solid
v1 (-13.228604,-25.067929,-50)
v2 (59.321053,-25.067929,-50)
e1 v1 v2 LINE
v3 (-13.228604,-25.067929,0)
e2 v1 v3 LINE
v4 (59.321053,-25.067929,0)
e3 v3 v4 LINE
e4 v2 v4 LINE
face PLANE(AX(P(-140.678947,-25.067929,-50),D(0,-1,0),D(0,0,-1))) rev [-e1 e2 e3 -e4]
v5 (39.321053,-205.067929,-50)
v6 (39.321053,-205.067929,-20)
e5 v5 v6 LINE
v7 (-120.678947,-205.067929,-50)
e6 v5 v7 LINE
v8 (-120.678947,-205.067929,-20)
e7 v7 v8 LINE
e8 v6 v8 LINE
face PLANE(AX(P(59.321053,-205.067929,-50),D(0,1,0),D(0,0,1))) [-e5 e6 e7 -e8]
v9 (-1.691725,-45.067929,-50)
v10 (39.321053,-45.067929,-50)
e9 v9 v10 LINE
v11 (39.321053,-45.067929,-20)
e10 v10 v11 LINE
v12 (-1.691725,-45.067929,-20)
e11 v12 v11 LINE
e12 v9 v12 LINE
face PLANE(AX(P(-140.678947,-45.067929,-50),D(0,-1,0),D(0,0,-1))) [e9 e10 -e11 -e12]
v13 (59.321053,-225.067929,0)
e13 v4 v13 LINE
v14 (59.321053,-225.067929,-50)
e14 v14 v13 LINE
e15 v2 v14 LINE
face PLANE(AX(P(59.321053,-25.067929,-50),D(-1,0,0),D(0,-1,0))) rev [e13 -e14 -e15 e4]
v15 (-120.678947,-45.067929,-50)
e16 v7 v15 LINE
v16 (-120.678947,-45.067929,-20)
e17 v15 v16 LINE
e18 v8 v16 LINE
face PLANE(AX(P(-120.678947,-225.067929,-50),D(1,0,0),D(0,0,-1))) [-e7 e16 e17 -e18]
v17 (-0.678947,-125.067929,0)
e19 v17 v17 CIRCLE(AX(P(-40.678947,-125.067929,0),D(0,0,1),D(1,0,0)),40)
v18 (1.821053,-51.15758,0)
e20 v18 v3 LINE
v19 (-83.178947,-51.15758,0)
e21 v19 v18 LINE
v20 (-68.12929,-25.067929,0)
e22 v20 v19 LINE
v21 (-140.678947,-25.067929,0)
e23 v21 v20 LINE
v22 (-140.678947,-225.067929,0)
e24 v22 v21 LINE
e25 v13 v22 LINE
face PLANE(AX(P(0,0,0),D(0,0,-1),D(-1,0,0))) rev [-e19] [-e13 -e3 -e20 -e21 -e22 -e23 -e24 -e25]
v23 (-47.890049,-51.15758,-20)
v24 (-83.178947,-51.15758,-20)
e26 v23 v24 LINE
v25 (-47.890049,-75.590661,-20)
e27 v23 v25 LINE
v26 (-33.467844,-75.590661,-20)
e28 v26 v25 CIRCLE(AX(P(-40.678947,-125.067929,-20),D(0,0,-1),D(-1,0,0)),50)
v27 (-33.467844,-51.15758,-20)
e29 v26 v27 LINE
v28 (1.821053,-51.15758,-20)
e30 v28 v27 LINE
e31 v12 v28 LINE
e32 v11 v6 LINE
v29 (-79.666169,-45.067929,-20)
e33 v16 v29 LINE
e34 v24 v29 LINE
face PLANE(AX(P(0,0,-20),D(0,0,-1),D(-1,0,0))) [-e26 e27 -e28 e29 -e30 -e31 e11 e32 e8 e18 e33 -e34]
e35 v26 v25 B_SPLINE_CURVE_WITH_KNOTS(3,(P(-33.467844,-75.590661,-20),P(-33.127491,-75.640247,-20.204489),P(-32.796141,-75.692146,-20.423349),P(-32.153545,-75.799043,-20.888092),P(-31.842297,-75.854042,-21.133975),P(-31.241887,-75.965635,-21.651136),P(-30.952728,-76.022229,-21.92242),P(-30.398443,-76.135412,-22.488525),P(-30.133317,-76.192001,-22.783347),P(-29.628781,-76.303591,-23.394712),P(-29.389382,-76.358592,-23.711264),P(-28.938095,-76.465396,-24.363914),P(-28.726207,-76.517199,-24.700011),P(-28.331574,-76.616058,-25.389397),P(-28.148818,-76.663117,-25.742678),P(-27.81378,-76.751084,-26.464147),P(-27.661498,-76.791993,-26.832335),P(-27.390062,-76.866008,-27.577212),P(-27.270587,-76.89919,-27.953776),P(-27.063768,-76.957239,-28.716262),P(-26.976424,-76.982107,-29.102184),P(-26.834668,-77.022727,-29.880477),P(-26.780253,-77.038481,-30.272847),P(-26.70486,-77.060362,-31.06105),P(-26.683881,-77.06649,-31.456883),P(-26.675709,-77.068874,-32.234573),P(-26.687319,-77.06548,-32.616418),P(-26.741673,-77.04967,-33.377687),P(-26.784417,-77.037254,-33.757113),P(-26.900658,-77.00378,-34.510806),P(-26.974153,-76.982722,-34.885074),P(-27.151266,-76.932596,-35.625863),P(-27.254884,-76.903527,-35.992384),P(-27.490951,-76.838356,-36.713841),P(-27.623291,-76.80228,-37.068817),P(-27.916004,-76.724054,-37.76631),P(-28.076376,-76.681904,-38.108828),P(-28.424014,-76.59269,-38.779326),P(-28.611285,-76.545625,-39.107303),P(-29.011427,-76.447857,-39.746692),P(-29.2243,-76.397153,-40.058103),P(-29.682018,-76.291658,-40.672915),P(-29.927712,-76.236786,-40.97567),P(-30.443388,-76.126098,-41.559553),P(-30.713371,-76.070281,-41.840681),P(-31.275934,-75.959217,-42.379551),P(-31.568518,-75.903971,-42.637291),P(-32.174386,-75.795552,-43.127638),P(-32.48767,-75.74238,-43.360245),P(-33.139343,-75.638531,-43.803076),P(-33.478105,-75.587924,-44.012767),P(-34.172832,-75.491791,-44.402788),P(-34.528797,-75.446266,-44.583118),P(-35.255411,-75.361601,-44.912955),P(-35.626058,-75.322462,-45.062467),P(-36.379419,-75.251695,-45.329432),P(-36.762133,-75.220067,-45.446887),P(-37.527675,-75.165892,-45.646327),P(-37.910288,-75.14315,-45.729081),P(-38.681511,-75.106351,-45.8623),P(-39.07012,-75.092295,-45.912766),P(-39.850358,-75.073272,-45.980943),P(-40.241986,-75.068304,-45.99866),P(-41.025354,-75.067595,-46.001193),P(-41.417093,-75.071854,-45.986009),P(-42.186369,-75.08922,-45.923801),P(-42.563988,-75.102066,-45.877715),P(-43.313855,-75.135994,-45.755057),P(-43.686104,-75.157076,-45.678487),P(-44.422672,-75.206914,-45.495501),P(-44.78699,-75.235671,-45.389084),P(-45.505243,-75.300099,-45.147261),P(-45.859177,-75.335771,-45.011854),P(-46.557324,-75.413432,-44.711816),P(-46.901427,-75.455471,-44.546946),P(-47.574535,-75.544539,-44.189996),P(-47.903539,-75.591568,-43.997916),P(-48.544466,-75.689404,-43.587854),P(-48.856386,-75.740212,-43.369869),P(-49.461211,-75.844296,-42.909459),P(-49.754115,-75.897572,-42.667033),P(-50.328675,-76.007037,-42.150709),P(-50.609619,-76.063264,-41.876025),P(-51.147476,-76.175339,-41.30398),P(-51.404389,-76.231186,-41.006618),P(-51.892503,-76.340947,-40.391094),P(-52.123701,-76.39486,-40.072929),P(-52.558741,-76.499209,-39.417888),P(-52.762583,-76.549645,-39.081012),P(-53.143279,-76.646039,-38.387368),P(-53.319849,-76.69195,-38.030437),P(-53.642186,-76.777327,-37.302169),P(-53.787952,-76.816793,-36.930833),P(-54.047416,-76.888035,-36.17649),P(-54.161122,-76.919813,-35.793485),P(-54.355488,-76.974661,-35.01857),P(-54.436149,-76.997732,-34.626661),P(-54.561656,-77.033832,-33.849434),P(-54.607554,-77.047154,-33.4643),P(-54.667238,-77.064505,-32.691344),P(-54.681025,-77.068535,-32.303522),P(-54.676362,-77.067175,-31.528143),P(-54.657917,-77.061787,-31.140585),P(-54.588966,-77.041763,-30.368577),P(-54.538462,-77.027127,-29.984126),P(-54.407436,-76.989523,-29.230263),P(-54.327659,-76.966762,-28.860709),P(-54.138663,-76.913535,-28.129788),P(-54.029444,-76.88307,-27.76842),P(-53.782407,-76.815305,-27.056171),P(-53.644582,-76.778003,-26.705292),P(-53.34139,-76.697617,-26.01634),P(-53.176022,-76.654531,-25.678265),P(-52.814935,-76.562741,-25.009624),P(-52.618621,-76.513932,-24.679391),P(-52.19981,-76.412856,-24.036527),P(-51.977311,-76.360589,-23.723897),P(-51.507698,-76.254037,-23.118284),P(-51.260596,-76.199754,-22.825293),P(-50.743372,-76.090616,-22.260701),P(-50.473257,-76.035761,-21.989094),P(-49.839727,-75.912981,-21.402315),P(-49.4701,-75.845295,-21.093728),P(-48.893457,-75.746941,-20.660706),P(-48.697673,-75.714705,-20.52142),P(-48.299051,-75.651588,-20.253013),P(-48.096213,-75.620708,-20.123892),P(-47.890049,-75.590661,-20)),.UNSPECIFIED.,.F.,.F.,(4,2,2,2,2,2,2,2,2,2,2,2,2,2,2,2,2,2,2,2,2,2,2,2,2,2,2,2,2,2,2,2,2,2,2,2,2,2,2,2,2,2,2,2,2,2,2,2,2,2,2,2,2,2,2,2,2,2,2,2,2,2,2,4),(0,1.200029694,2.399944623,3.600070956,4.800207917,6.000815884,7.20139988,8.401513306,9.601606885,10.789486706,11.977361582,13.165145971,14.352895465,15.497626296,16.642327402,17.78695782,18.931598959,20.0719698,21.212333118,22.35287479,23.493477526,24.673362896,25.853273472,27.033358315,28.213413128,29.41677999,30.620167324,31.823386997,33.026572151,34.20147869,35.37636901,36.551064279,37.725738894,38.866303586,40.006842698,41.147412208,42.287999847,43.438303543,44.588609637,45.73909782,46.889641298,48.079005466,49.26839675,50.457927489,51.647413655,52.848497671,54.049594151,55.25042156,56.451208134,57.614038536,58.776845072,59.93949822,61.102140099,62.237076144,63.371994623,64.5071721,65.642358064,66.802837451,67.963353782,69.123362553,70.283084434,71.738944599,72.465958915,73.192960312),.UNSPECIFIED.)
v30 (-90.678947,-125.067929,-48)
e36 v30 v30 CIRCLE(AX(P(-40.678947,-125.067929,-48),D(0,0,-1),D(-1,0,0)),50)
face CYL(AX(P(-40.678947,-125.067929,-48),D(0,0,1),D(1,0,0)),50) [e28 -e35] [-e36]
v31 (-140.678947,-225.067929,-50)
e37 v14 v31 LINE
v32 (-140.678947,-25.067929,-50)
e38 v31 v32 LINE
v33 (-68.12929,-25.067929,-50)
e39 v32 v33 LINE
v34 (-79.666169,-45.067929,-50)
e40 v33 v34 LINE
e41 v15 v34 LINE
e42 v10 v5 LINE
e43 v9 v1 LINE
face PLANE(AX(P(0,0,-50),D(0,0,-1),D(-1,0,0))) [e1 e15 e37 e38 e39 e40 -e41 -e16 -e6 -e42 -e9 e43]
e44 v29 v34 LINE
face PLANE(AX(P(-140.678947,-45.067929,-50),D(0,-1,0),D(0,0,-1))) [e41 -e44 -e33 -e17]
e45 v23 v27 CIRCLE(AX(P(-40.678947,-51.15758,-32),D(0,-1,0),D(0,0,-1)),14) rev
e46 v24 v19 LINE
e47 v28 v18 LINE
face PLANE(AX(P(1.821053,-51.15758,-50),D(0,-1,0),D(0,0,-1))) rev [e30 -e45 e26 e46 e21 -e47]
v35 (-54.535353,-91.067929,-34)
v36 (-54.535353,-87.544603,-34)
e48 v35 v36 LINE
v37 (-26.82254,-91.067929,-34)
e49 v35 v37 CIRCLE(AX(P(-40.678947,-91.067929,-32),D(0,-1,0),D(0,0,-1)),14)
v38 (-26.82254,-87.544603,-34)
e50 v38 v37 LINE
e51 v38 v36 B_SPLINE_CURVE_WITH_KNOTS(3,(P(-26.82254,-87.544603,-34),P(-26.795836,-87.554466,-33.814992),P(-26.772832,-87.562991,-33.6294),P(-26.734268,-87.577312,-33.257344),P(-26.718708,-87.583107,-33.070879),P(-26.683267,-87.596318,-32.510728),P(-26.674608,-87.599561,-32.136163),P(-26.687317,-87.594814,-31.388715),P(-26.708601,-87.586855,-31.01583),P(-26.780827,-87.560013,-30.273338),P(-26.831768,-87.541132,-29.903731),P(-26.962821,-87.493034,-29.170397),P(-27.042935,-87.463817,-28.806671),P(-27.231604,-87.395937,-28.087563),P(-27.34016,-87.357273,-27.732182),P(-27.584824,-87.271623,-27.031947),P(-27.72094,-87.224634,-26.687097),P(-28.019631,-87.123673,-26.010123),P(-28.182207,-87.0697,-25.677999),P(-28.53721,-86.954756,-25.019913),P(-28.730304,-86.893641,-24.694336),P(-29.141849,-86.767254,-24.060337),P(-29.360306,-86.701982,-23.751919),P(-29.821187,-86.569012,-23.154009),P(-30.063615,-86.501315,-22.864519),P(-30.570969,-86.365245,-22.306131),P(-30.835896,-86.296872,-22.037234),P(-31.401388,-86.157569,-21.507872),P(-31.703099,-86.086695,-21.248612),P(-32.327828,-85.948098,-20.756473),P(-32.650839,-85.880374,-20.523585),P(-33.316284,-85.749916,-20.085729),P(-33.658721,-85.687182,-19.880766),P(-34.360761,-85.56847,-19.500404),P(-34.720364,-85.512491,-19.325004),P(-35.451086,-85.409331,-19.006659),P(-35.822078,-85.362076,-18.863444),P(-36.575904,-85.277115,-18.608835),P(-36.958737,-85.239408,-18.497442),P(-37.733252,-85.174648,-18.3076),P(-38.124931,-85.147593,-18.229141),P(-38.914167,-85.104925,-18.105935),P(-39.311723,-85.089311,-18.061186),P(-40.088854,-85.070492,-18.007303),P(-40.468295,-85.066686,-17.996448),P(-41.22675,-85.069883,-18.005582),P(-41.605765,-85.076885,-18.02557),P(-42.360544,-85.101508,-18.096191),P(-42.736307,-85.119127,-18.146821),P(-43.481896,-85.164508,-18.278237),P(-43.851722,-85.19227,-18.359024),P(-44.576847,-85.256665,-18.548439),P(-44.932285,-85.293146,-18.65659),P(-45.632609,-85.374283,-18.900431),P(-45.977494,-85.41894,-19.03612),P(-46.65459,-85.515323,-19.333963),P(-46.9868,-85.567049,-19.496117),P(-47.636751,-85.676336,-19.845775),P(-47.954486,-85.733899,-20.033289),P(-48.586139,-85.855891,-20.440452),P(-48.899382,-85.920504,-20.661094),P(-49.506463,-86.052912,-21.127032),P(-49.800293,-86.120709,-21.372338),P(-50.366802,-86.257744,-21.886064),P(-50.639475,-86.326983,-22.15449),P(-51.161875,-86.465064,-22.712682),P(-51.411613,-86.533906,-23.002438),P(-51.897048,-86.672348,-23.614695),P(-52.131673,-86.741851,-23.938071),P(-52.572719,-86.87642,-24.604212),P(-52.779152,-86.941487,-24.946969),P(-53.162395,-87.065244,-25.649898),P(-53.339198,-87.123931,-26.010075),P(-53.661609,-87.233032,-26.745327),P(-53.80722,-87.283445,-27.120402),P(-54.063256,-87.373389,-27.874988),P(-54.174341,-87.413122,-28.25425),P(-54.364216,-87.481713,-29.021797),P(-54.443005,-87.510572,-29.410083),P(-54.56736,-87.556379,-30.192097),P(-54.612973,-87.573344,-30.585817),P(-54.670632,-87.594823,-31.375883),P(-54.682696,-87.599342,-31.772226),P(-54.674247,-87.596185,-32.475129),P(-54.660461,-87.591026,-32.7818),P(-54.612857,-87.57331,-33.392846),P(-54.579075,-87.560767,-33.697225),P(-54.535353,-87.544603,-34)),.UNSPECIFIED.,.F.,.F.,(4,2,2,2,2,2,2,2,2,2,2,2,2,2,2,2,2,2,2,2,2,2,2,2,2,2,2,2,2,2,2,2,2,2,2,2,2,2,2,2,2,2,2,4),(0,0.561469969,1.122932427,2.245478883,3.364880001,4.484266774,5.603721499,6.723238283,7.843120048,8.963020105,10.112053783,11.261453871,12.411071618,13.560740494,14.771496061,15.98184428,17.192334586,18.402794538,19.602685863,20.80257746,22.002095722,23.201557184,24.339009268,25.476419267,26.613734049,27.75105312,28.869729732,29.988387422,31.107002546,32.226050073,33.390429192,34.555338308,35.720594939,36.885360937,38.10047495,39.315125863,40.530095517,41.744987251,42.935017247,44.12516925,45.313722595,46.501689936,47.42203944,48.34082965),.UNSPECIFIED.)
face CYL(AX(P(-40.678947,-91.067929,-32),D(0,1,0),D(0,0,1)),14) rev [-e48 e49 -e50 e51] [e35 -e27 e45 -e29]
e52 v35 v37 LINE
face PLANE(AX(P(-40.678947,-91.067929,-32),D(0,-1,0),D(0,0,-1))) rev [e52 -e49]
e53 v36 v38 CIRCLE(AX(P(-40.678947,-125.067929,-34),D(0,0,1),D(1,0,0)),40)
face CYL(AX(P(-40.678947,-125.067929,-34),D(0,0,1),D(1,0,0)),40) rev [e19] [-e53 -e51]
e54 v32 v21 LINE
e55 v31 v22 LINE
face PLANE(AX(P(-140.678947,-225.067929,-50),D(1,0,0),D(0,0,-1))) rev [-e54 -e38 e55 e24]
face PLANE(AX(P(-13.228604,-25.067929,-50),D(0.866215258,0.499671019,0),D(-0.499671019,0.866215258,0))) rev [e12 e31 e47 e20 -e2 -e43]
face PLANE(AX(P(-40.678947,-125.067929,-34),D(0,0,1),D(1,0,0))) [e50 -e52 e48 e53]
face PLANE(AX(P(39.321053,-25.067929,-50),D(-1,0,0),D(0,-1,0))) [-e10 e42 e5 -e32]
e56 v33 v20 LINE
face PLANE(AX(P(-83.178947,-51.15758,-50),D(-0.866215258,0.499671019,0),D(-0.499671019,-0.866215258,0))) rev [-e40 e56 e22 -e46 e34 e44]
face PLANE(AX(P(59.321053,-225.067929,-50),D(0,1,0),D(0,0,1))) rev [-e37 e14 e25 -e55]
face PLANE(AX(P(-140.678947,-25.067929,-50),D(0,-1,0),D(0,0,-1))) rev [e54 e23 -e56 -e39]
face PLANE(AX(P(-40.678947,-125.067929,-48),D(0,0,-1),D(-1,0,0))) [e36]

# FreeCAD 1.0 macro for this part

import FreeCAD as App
import Part
import Sketcher
from FreeCAD import Vector
Q = App.Units.Quantity


def faces_at(feature, points):
    """Names of the faces that lie closest to the given points."""
    faces = feature.Shape.Faces
    near = lambda p: min(range(len(faces)), key=lambda i: faces[i].distToShape(Part.Vertex(*p))[0])
    return sorted({f"Face{near(p) + 1}" for p in points})

doc = App.newDocument("Part")
body = doc.addObject("PartDesign::Body", "Body")

# Sketch on XY plane
sketch1 = doc.addObject("Sketcher::SketchObject", "Sketch")
body.addObject(sketch1)
sketch1.AttachmentSupport = (doc.XY_Plane, [""])
sketch1.MapMode = "FlatFace"
sketch1.addGeometry([
    Part.LineSegment(Vector(-140.678947, -25.067929, 0), Vector(-140.678947, -225.067929, 0)),
    Part.LineSegment(Vector(-140.678947, -225.067929, 0), Vector(59.321053, -225.067929, 0)),
    Part.LineSegment(Vector(59.321053, -225.067929, 0), Vector(59.321053, -25.067929, 0)),
    Part.LineSegment(Vector(59.321053, -25.067929, 0), Vector(-140.678947, -25.067929, 0)),
], False)
sketch1.addConstraint([
    Sketcher.Constraint("Coincident", 0, 2, 1, 1),
    Sketcher.Constraint("Coincident", 1, 2, 2, 1),
    Sketcher.Constraint("Coincident", 2, 2, 3, 1),
    Sketcher.Constraint("Coincident", 3, 2, 0, 1),
    Sketcher.Constraint("Vertical", 0),
    Sketcher.Constraint("Horizontal", 1),
    Sketcher.Constraint("Vertical", 2),
    Sketcher.Constraint("Horizontal", 3),
    Sketcher.Constraint("Equal", 3, 0),
    Sketcher.Constraint("DistanceX", 1, 1, 1, 2, Q("200 mm")),
    Sketcher.Constraint("DistanceY", 0, 2, -1, 1, Q("225.067929 mm")),
    Sketcher.Constraint("DistanceX", 0, 2, -1, 1, Q("140.678947 mm")),
])
pad1 = doc.addObject("PartDesign::Pad", "Pad")
body.addObject(pad1)
pad1.Profile = sketch1
pad1.Length = 50
pad1.Reversed = True
doc.recompute()

thickness = doc.addObject("PartDesign::Thickness", "Thickness")
body.addObject(thickness)
thickness.Base = (pad1, faces_at(pad1, [(-40.679, -125.068, -50)]))
thickness.Value = 20
thickness.Reversed = True
thickness.Join = "Intersection"

# Sketch on XY plane
sketch2 = doc.addObject("Sketcher::SketchObject", "Sketch001")
body.addObject(sketch2)
sketch2.AttachmentSupport = (doc.XY_Plane, [""])
sketch2.MapMode = "FlatFace"
sketch2.addGeometry([
    Part.LineSegment(Vector(1.821053, -51.15758, 0), Vector(-13.228604, -25.067929, 0)),
    Part.LineSegment(Vector(-13.228604, -25.067929, 0), Vector(-68.12929, -25.067929, 0)),
    Part.LineSegment(Vector(-68.12929, -25.067929, 0), Vector(-83.178947, -51.15758, 0)),
    Part.LineSegment(Vector(-83.178947, -51.15758, 0), Vector(1.821053, -51.15758, 0)),
], False)
sketch2.addConstraint([
    Sketcher.Constraint("Coincident", 0, 2, 1, 1),
    Sketcher.Constraint("Coincident", 1, 2, 2, 1),
    Sketcher.Constraint("Coincident", 2, 2, 3, 1),
    Sketcher.Constraint("Coincident", 3, 2, 0, 1),
    Sketcher.Constraint("Horizontal", 1),
    Sketcher.Constraint("Horizontal", 3),
    Sketcher.Constraint("Equal", 0, 2),
    Sketcher.Constraint("DistanceX", 3, 1, 3, 2, Q("85 mm")),
    Sketcher.Constraint("Distance", 0, Q("30.119131 mm")),
    Sketcher.Constraint("DistanceX", 1, 2, 1, 1, Q("54.900686 mm")),
    Sketcher.Constraint("DistanceY", 0, 2, -1, 1, Q("25.067929 mm")),
    Sketcher.Constraint("DistanceX", 1, 2, -1, 1, Q("68.12929 mm")),
])
pocket1 = doc.addObject("PartDesign::Pocket", "Pocket")
body.addObject(pocket1)
pocket1.Profile = sketch2
pocket1.Length = 50

# Sketch on XY plane
sketch3 = doc.addObject("Sketcher::SketchObject", "Sketch002")
body.addObject(sketch3)
sketch3.AttachmentSupport = (doc.XY_Plane, [""])
sketch3.MapMode = "FlatFace"
sketch3.AttachmentOffset = App.Placement(Vector(0, 0, -20), App.Rotation())
sketch3.addGeometry(Part.Circle(Vector(-40.678947, -125.067929, 0), Vector(0, 0, 1), 50), False)
sketch3.addConstraint([
    Sketcher.Constraint("Diameter", 0, Q("100 mm")),
    Sketcher.Constraint("DistanceY", 0, 3, -1, 1, Q("125.067929 mm")),
    Sketcher.Constraint("DistanceX", 0, 3, -1, 1, Q("40.678947 mm")),
])
pad2 = doc.addObject("PartDesign::Pad", "Pad001")
body.addObject(pad2)
pad2.Profile = sketch3
pad2.Length = 28
pad2.Reversed = True

# Sketch on XY plane
sketch4 = doc.addObject("Sketcher::SketchObject", "Sketch003")
body.addObject(sketch4)
sketch4.AttachmentSupport = (doc.XY_Plane, [""])
sketch4.MapMode = "FlatFace"
sketch4.addGeometry(Part.Circle(Vector(-40.678947, -125.067929, 0), Vector(0, 0, 1), 40), False)
sketch4.addConstraint([
    Sketcher.Constraint("Diameter", 0, Q("80 mm")),
    Sketcher.Constraint("DistanceY", 0, 3, -1, 1, Q("125.067929 mm")),
    Sketcher.Constraint("DistanceX", 0, 3, -1, 1, Q("40.678947 mm")),
])
pocket2 = doc.addObject("PartDesign::Pocket", "Pocket001")
body.addObject(pocket2)
pocket2.Profile = sketch4
pocket2.Length = 34

# Sketch on XZ plane
sketch5 = doc.addObject("Sketcher::SketchObject", "Sketch004")
body.addObject(sketch5)
sketch5.AttachmentSupport = (doc.XZ_Plane, [""])
sketch5.MapMode = "FlatFace"
sketch5.AttachmentOffset = App.Placement(Vector(0, 0, 45.067929), App.Rotation())
sketch5.addGeometry(Part.Circle(Vector(-40.678947, -32, 0), Vector(0, 0, 1), 14), False)
sketch5.addConstraint([
    Sketcher.Constraint("Diameter", 0, Q("28 mm")),
    Sketcher.Constraint("DistanceY", 0, 3, -1, 1, Q("32 mm")),
    Sketcher.Constraint("DistanceX", 0, 3, -1, 1, Q("40.678947 mm")),
])
pocket3 = doc.addObject("PartDesign::Pocket", "Pocket002")
body.addObject(pocket3)
pocket3.Profile = sketch5
pocket3.Length = 46
pocket3.Reversed = True

doc.recompute()
